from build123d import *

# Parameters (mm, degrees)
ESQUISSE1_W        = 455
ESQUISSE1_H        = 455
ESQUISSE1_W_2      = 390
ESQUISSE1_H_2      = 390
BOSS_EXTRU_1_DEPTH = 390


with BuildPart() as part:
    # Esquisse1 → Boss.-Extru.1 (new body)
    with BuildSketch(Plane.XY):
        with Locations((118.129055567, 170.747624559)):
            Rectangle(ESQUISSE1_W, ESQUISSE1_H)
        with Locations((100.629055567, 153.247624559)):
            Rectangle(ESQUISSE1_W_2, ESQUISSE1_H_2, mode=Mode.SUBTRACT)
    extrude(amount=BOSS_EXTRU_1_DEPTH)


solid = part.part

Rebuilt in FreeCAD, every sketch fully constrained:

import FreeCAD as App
import Part
import Sketcher

doc = App.newDocument("Part")
body = doc.addObject("PartDesign::Body", "Body")

sketch1 = body.newObject("Sketcher::SketchObject", "Sketch")
sketch1.AttachmentSupport = (doc.getObject("XY_Plane"), [""])
sketch1.MapMode = "FlatFace"
sketch1.addGeometry([
    Part.LineSegment(App.Vector(-109, 398, 0), App.Vector(-109, -57, 0)),
    Part.LineSegment(App.Vector(-109, -57, 0), App.Vector(346, -57, 0)),
    Part.LineSegment(App.Vector(346, -57, 0), App.Vector(346, 398, 0)),
    Part.LineSegment(App.Vector(346, 398, 0), App.Vector(-109, 398, 0)),
    Part.LineSegment(App.Vector(296, -42, 0), App.Vector(-94, -42, 0)),
    Part.LineSegment(App.Vector(-94, -42, 0), App.Vector(-94, 348, 0)),
    Part.LineSegment(App.Vector(-94, 348, 0), App.Vector(296, 348, 0)),
    Part.LineSegment(App.Vector(296, 348, 0), App.Vector(296, -42, 0)),
], False)
sketch1.addConstraint([
    Sketcher.Constraint("Coincident", 0, 2, 1, 1),
    Sketcher.Constraint("Coincident", 1, 2, 2, 1),
    Sketcher.Constraint("Coincident", 2, 2, 3, 1),
    Sketcher.Constraint("Coincident", 3, 2, 0, 1),
    Sketcher.Constraint("Coincident", 4, 2, 5, 1),
    Sketcher.Constraint("Coincident", 5, 2, 6, 1),
    Sketcher.Constraint("Coincident", 6, 2, 7, 1),
    Sketcher.Constraint("Coincident", 7, 2, 4, 1),
    Sketcher.Constraint("Vertical", 0),
    Sketcher.Constraint("Horizontal", 1),
    Sketcher.Constraint("Vertical", 2),
    Sketcher.Constraint("Horizontal", 3),
    Sketcher.Constraint("Horizontal", 4),
    Sketcher.Constraint("Vertical", 5),
    Sketcher.Constraint("Horizontal", 6),
    Sketcher.Constraint("Vertical", 7),
    Sketcher.Constraint("Equal", 3, 0),
    Sketcher.Constraint("Equal", 6, 5),
    Sketcher.Constraint("DistanceX", 1, 1, 1, 2, 455.0),
    Sketcher.Constraint("DistanceX", 4, 2, 4, 1, 390.0),
    Sketcher.Constraint("DistanceX", 0, 2, 4, 2, 15.0),
    Sketcher.Constraint("DistanceY", 0, 2, 4, 2, 15.0),
    Sketcher.Constraint("DistanceX", 0, 2, -1, 1, 109.370944),
    Sketcher.Constraint("DistanceY", 0, 2, -1, 1, 56.752375),
])
pad1 = body.newObject("PartDesign::Pad", "Pad")
pad1.Profile = sketch1
pad1.Length = 390

doc.recompute()
